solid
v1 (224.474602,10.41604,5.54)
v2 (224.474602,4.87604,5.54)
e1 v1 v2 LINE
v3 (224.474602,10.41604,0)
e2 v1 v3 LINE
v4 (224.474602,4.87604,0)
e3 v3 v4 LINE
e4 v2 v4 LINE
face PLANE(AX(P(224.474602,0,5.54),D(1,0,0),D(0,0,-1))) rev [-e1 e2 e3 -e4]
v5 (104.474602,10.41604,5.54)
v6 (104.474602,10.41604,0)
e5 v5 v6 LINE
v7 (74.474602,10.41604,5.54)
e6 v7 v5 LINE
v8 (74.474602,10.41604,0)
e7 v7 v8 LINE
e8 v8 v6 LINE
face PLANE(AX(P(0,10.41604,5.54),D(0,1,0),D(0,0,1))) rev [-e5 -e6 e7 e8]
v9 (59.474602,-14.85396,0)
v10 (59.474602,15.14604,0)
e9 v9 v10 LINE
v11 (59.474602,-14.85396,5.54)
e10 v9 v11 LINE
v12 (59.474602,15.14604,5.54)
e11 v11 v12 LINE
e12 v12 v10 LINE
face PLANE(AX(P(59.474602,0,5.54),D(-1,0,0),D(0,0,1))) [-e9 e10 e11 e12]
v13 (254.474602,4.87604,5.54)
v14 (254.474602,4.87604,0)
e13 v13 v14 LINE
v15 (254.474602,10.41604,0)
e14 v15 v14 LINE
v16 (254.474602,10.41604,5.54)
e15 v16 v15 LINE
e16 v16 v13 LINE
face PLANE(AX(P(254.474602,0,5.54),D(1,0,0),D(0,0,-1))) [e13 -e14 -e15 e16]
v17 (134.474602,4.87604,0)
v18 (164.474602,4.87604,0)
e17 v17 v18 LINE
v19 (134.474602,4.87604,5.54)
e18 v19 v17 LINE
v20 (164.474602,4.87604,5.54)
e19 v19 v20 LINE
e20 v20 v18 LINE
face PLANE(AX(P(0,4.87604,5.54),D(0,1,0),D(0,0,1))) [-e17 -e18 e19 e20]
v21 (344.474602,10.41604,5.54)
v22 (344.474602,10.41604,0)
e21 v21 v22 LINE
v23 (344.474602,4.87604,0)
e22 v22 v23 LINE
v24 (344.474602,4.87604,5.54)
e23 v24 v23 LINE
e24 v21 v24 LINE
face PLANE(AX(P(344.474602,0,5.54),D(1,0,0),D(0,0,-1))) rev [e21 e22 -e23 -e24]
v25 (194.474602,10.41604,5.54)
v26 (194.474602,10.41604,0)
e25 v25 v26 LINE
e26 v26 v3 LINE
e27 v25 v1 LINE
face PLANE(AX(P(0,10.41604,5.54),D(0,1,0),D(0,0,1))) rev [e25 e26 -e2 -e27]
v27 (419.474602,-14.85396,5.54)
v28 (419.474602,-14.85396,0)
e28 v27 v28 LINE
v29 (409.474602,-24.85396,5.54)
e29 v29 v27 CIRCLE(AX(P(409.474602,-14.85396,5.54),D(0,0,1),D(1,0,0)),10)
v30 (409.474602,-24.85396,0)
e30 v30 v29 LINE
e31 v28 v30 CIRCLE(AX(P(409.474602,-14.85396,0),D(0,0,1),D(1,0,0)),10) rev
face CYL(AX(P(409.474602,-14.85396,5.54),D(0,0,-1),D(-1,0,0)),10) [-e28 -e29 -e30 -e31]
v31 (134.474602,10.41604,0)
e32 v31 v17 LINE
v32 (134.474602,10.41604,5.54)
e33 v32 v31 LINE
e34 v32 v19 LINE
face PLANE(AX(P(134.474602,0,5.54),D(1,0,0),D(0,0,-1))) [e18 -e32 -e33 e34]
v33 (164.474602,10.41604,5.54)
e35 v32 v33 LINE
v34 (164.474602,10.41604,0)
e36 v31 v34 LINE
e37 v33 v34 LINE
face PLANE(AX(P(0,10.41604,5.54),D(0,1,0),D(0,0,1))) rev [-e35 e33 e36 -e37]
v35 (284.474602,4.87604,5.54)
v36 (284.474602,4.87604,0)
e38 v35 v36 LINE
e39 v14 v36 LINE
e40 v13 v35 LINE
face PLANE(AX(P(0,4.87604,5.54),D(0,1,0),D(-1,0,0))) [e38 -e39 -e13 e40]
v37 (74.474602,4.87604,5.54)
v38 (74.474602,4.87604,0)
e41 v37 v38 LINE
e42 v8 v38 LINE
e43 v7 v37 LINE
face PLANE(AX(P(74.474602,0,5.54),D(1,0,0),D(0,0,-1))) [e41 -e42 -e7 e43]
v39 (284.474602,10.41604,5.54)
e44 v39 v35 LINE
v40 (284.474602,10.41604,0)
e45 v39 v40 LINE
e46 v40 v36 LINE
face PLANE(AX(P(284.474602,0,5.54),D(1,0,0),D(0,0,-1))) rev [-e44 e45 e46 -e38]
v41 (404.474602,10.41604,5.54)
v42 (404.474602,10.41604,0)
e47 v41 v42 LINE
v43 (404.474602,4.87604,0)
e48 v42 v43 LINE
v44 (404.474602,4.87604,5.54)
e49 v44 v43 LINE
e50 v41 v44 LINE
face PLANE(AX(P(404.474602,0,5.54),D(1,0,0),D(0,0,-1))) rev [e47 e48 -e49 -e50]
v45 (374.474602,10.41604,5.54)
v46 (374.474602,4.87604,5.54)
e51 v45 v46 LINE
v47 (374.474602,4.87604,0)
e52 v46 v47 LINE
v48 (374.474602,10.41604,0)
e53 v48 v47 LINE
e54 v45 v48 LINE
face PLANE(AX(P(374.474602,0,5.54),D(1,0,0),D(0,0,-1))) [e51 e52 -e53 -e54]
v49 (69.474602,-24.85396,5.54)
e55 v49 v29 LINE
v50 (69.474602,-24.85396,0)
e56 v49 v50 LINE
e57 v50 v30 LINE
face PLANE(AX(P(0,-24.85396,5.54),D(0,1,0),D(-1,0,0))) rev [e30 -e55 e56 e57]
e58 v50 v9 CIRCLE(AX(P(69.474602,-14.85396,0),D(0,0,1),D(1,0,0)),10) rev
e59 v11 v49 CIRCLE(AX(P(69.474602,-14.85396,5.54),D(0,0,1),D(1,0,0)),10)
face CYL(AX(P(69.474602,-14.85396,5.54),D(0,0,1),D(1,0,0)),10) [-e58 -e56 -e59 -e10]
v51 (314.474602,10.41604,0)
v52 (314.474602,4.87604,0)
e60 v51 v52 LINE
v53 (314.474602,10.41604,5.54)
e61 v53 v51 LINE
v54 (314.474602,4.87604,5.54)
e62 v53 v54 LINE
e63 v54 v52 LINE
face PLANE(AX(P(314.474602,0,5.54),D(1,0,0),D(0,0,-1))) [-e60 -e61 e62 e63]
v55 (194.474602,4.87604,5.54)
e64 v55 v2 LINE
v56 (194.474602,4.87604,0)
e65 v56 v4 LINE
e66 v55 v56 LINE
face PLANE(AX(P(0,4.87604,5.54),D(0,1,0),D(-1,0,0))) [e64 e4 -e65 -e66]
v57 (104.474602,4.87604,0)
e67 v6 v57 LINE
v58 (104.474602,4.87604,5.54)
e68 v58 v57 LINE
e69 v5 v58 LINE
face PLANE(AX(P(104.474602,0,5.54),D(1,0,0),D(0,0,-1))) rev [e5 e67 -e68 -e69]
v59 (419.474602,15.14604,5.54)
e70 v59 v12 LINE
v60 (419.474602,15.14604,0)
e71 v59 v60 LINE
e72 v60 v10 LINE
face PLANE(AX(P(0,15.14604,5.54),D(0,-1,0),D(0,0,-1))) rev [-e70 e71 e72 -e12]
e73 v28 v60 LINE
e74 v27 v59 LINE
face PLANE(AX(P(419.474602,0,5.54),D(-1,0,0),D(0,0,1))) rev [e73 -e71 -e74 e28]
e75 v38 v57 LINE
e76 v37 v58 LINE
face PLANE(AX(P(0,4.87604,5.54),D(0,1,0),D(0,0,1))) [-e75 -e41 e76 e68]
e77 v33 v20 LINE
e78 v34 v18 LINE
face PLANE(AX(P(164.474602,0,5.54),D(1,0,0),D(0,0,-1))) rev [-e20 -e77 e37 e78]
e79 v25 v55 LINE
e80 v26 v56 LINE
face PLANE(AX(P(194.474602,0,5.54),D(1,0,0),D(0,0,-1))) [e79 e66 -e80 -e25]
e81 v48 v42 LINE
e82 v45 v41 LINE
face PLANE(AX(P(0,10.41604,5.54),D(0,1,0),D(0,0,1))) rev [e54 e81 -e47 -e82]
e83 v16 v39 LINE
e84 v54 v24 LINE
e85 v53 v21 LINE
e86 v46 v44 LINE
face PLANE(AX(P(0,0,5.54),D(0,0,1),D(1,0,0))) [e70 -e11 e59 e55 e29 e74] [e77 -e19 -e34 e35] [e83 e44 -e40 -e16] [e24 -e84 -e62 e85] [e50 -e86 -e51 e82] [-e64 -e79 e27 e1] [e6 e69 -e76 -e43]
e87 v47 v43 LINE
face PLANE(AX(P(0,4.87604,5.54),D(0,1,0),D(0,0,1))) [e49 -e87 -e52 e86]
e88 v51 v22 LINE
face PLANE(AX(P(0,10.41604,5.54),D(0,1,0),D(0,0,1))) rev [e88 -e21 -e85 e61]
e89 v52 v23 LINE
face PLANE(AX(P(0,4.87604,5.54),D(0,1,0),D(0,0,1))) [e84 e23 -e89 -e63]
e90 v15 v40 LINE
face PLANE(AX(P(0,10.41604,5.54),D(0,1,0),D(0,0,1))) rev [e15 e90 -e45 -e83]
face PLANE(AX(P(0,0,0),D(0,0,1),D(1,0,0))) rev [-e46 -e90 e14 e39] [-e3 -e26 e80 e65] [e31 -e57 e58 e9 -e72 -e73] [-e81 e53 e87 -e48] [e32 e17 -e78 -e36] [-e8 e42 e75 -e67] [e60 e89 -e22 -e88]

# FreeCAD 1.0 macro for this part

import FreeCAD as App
import Part
import Sketcher
from FreeCAD import Vector


def edges_at(feature, points):
    """Names of the edges that pass closest to the given points."""
    edges = feature.Shape.Edges
    near = lambda p: min(range(len(edges)), key=lambda i: edges[i].distToShape(Part.Vertex(*p))[0])
    return sorted({f"Edge{near(p) + 1}" for p in points})

doc = App.newDocument("Part")
body = doc.addObject("PartDesign::Body", "Body")

# Sketch on XY plane
sketch1 = body.newObject("Sketcher::SketchObject", "Sketch")
sketch1.AttachmentSupport = (doc.getObject("XY_Plane"), [""])
sketch1.MapMode = "FlatFace"
sketch1.addGeometry(Part.LineSegment(Vector(59.474602, 15.14604, 0), Vector(59.474602, -24.85396, 0)), False)
sketch1.addGeometry(Part.LineSegment(Vector(59.474602, -24.85396, 0), Vector(419.474602, -24.85396, 0)), False)
sketch1.addGeometry(Part.LineSegment(Vector(419.474602, -24.85396, 0), Vector(419.474602, 15.14604, 0)), False)
sketch1.addGeometry(Part.LineSegment(Vector(419.474602, 15.14604, 0), Vector(59.474602, 15.14604, 0)), False)
sketch1.addGeometry(Part.LineSegment(Vector(104.474602, 4.87604, 0), Vector(74.474602, 4.87604, 0)), False)
sketch1.addGeometry(Part.LineSegment(Vector(74.474602, 4.87604, 0), Vector(74.474602, 10.41604, 0)), False)
sketch1.addGeometry(Part.LineSegment(Vector(74.474602, 10.41604, 0), Vector(104.474602, 10.41604, 0)), False)
sketch1.addGeometry(Part.LineSegment(Vector(104.474602, 10.41604, 0), Vector(104.474602, 4.87604, 0)), False)
sketch1.addGeometry(Part.LineSegment(Vector(164.474602, 4.87604, 0), Vector(134.474602, 4.87604, 0)), False)
sketch1.addGeometry(Part.LineSegment(Vector(134.474602, 4.87604, 0), Vector(134.474602, 10.41604, 0)), False)
sketch1.addGeometry(Part.LineSegment(Vector(134.474602, 10.41604, 0), Vector(164.474602, 10.41604, 0)), False)
sketch1.addGeometry(Part.LineSegment(Vector(164.474602, 10.41604, 0), Vector(164.474602, 4.87604, 0)), False)
sketch1.addGeometry(Part.LineSegment(Vector(224.474602, 4.87604, 0), Vector(194.474602, 4.87604, 0)), False)
sketch1.addGeometry(Part.LineSegment(Vector(194.474602, 4.87604, 0), Vector(194.474602, 10.41604, 0)), False)
sketch1.addGeometry(Part.LineSegment(Vector(194.474602, 10.41604, 0), Vector(224.474602, 10.41604, 0)), False)
sketch1.addGeometry(Part.LineSegment(Vector(224.474602, 10.41604, 0), Vector(224.474602, 4.87604, 0)), False)
sketch1.addGeometry(Part.LineSegment(Vector(284.474602, 4.87604, 0), Vector(254.474602, 4.87604, 0)), False)
sketch1.addGeometry(Part.LineSegment(Vector(254.474602, 4.87604, 0), Vector(254.474602, 10.41604, 0)), False)
sketch1.addGeometry(Part.LineSegment(Vector(254.474602, 10.41604, 0), Vector(284.474602, 10.41604, 0)), False)
sketch1.addGeometry(Part.LineSegment(Vector(284.474602, 10.41604, 0), Vector(284.474602, 4.87604, 0)), False)
sketch1.addGeometry(Part.LineSegment(Vector(344.474602, 4.87604, 0), Vector(314.474602, 4.87604, 0)), False)
sketch1.addGeometry(Part.LineSegment(Vector(314.474602, 4.87604, 0), Vector(314.474602, 10.41604, 0)), False)
sketch1.addGeometry(Part.LineSegment(Vector(314.474602, 10.41604, 0), Vector(344.474602, 10.41604, 0)), False)
sketch1.addGeometry(Part.LineSegment(Vector(344.474602, 10.41604, 0), Vector(344.474602, 4.87604, 0)), False)
sketch1.addGeometry(Part.LineSegment(Vector(404.474602, 4.87604, 0), Vector(374.474602, 4.87604, 0)), False)
sketch1.addGeometry(Part.LineSegment(Vector(374.474602, 4.87604, 0), Vector(374.474602, 10.41604, 0)), False)
sketch1.addGeometry(Part.LineSegment(Vector(374.474602, 10.41604, 0), Vector(404.474602, 10.41604, 0)), False)
sketch1.addGeometry(Part.LineSegment(Vector(404.474602, 10.41604, 0), Vector(404.474602, 4.87604, 0)), False)
sketch1.addConstraint(Sketcher.Constraint("Coincident", 0, 2, 1, 1))
sketch1.addConstraint(Sketcher.Constraint("Coincident", 1, 2, 2, 1))
sketch1.addConstraint(Sketcher.Constraint("Coincident", 2, 2, 3, 1))
sketch1.addConstraint(Sketcher.Constraint("Coincident", 3, 2, 0, 1))
sketch1.addConstraint(Sketcher.Constraint("Coincident", 4, 2, 5, 1))
sketch1.addConstraint(Sketcher.Constraint("Coincident", 5, 2, 6, 1))
sketch1.addConstraint(Sketcher.Constraint("Coincident", 6, 2, 7, 1))
sketch1.addConstraint(Sketcher.Constraint("Coincident", 7, 2, 4, 1))
sketch1.addConstraint(Sketcher.Constraint("Coincident", 8, 2, 9, 1))
sketch1.addConstraint(Sketcher.Constraint("Coincident", 9, 2, 10, 1))
sketch1.addConstraint(Sketcher.Constraint("Coincident", 10, 2, 11, 1))
sketch1.addConstraint(Sketcher.Constraint("Coincident", 11, 2, 8, 1))
sketch1.addConstraint(Sketcher.Constraint("Coincident", 12, 2, 13, 1))
sketch1.addConstraint(Sketcher.Constraint("Coincident", 13, 2, 14, 1))
sketch1.addConstraint(Sketcher.Constraint("Coincident", 14, 2, 15, 1))
sketch1.addConstraint(Sketcher.Constraint("Coincident", 15, 2, 12, 1))
sketch1.addConstraint(Sketcher.Constraint("Coincident", 16, 2, 17, 1))
sketch1.addConstraint(Sketcher.Constraint("Coincident", 17, 2, 18, 1))
sketch1.addConstraint(Sketcher.Constraint("Coincident", 18, 2, 19, 1))
sketch1.addConstraint(Sketcher.Constraint("Coincident", 19, 2, 16, 1))
sketch1.addConstraint(Sketcher.Constraint("Coincident", 20, 2, 21, 1))
sketch1.addConstraint(Sketcher.Constraint("Coincident", 21, 2, 22, 1))
sketch1.addConstraint(Sketcher.Constraint("Coincident", 22, 2, 23, 1))
sketch1.addConstraint(Sketcher.Constraint("Coincident", 23, 2, 20, 1))
sketch1.addConstraint(Sketcher.Constraint("Coincident", 24, 2, 25, 1))
sketch1.addConstraint(Sketcher.Constraint("Coincident", 25, 2, 26, 1))
sketch1.addConstraint(Sketcher.Constraint("Coincident", 26, 2, 27, 1))
sketch1.addConstraint(Sketcher.Constraint("Coincident", 27, 2, 24, 1))
sketch1.addConstraint(Sketcher.Constraint("Vertical", 0))
sketch1.addConstraint(Sketcher.Constraint("Horizontal", 1))
sketch1.addConstraint(Sketcher.Constraint("Vertical", 2))
sketch1.addConstraint(Sketcher.Constraint("Horizontal", 3))
sketch1.addConstraint(Sketcher.Constraint("Horizontal", 4))
sketch1.addConstraint(Sketcher.Constraint("Vertical", 5))
sketch1.addConstraint(Sketcher.Constraint("Horizontal", 6))
sketch1.addConstraint(Sketcher.Constraint("Vertical", 7))
sketch1.addConstraint(Sketcher.Constraint("Horizontal", 8))
sketch1.addConstraint(Sketcher.Constraint("Vertical", 9))
sketch1.addConstraint(Sketcher.Constraint("Horizontal", 10))
sketch1.addConstraint(Sketcher.Constraint("Vertical", 11))
sketch1.addConstraint(Sketcher.Constraint("Horizontal", 12))
sketch1.addConstraint(Sketcher.Constraint("Vertical", 13))
sketch1.addConstraint(Sketcher.Constraint("Horizontal", 14))
sketch1.addConstraint(Sketcher.Constraint("Vertical", 15))
sketch1.addConstraint(Sketcher.Constraint("Horizontal", 16))
sketch1.addConstraint(Sketcher.Constraint("Vertical", 17))
sketch1.addConstraint(Sketcher.Constraint("Horizontal", 18))
sketch1.addConstraint(Sketcher.Constraint("Vertical", 19))
sketch1.addConstraint(Sketcher.Constraint("Horizontal", 20))
sketch1.addConstraint(Sketcher.Constraint("Vertical", 21))
sketch1.addConstraint(Sketcher.Constraint("Horizontal", 22))
sketch1.addConstraint(Sketcher.Constraint("Vertical", 23))
sketch1.addConstraint(Sketcher.Constraint("Horizontal", 24))
sketch1.addConstraint(Sketcher.Constraint("Vertical", 25))
sketch1.addConstraint(Sketcher.Constraint("Horizontal", 26))
sketch1.addConstraint(Sketcher.Constraint("Vertical", 27))
sketch1.addConstraint(Sketcher.Constraint("Horizontal", 7, 2, 8, 2))
sketch1.addConstraint(Sketcher.Constraint("Horizontal", 6, 2, 9, 2))
sketch1.addConstraint(Sketcher.Constraint("Horizontal", 11, 2, 12, 2))
sketch1.addConstraint(Sketcher.Constraint("Horizontal", 10, 2, 13, 2))
sketch1.addConstraint(Sketcher.Constraint("Horizontal", 15, 2, 16, 2))
sketch1.addConstraint(Sketcher.Constraint("Horizontal", 14, 2, 17, 2))
sketch1.addConstraint(Sketcher.Constraint("Horizontal", 19, 2, 20, 2))
sketch1.addConstraint(Sketcher.Constraint("Horizontal", 18, 2, 21, 2))
sketch1.addConstraint(Sketcher.Constraint("Horizontal", 23, 2, 24, 2))
sketch1.addConstraint(Sketcher.Constraint("Horizontal", 22, 2, 25, 2))
sketch1.addConstraint(Sketcher.Constraint("Equal", 6, 8))
sketch1.addConstraint(Sketcher.Constraint("Equal", 10, 12))
sketch1.addConstraint(Sketcher.Constraint("Equal", 14, 16))
sketch1.addConstraint(Sketcher.Constraint("Equal", 18, 20))
sketch1.addConstraint(Sketcher.Constraint("Equal", 22, 24))
sketch1.addConstraint(Sketcher.Constraint("DistanceX", 1, 1, 1, 2, 360.0))
sketch1.addConstraint(Sketcher.Constraint("DistanceX", 4, 2, 4, 1, 30.0))
sketch1.addConstraint(Sketcher.Constraint("DistanceY", 0, 2, 0, 1, 40.0))
sketch1.addConstraint(Sketcher.Constraint("DistanceX", 3, 2, 4, 2, 15.0))
sketch1.addConstraint(Sketcher.Constraint("DistanceX", 7, 2, 8, 2, 30.0))
sketch1.addConstraint(Sketcher.Constraint("DistanceX", 11, 2, 12, 2, 30.0))
sketch1.addConstraint(Sketcher.Constraint("DistanceX", 15, 2, 16, 2, 30.0))
sketch1.addConstraint(Sketcher.Constraint("DistanceX", 19, 2, 20, 2, 30.0))
sketch1.addConstraint(Sketcher.Constraint("DistanceX", 23, 2, 24, 2, 30.0))
sketch1.addConstraint(Sketcher.Constraint("DistanceY", 5, 1, 5, 2, 5.54))
sketch1.addConstraint(Sketcher.Constraint("DistanceY", 4, 2, 3, 2, 10.27))
sketch1.addConstraint(Sketcher.Constraint("DistanceY", 0, 2, -1, 1, 24.85396))
sketch1.addConstraint(Sketcher.Constraint("DistanceX", -1, 1, 0, 2, 59.474602))
pad1 = body.newObject("PartDesign::Pad", "Pad")
pad1.Profile = sketch1
pad1.Length = 5.54
doc.recompute()

fillet = body.newObject("PartDesign::Fillet", "Fillet")
fillet.Base = (pad1, edges_at(pad1, [(419.475, -24.854, 2.77), (59.475, -24.854, 2.77)]))
fillet.Radius = 10

doc.recompute()
